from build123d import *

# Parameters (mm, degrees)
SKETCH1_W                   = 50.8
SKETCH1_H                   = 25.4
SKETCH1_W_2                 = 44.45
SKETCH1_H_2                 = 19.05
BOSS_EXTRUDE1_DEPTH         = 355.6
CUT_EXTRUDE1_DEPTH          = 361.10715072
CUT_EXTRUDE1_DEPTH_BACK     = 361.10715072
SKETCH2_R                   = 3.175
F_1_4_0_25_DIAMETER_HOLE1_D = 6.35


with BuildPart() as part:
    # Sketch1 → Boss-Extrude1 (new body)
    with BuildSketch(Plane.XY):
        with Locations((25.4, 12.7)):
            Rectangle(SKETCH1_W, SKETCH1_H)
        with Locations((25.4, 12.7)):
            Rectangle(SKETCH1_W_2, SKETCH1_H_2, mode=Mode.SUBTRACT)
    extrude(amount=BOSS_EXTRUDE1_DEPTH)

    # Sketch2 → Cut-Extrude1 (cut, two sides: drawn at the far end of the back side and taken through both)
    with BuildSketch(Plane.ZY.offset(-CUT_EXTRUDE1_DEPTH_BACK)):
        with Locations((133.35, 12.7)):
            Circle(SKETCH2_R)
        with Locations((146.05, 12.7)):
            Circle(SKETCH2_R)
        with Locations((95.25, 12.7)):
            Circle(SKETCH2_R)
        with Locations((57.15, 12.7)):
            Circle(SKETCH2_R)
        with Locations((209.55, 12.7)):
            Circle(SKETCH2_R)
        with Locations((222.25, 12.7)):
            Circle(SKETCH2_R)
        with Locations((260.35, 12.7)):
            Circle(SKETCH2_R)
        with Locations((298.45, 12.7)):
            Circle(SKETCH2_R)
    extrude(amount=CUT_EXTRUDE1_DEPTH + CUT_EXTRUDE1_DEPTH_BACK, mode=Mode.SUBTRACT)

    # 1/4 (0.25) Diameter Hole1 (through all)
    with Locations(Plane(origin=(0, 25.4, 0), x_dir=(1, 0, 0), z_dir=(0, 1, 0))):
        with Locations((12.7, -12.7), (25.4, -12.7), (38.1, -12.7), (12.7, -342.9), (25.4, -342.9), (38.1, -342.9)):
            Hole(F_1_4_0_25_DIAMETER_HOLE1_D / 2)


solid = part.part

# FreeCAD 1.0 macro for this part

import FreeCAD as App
import Part
import Sketcher

V = App.Vector
Q = App.Units.Quantity


def add_polygon(sketch, points):
    """Adds a closed chain of lines whose ends are joined by coincident constraints."""
    first, n = sketch.GeometryCount, len(points)
    for a, b in zip(points, points[1:] + points[:1]):
        sketch.addGeometry(Part.LineSegment(App.Vector(*a, 0), App.Vector(*b, 0)), False)
    for i in range(n):
        sketch.addConstraint(Sketcher.Constraint("Coincident", first + i, 2, first + (i + 1) % n, 1))

doc = App.newDocument("Part")
params = doc.addObject("Spreadsheet::Sheet", "Params")
for row, (alias, value) in enumerate([
    ("sketch1_width", "2 in"),
    ("sketch1_height", "1 in"),
    ("sketch1_width2", "1.75 in"),
    ("sketch1_height2", "0.75 in"),
    ("pad1_length", "14 in"),
    ("sketch2_diameter", "0.25 in"),
    ("sketch3_diameter", "0.25 in"),
    ("hole_diameter", "0.25 in"),
], start=1):
    params.set(f"A{row}", alias)
    params.set(f"B{row}", "=" + value)
    params.setAlias(f"B{row}", alias)

body = doc.addObject("PartDesign::Body", "Body")

# Sketch on XY plane
sketch1 = body.newObject("Sketcher::SketchObject", "Sketch")
sketch1.AttachmentSupport = (doc.getObject("XY_Plane"), [""])
sketch1.MapMode = "FlatFace"
add_polygon(sketch1, [(0, 25), (0, 0), (51, 0), (51, 25)])  # lines 0-3
add_polygon(sketch1, [(48, 3), (3, 3), (3, 22), (48, 22)])  # lines 4-7
sketch1.addConstraint(Sketcher.Constraint("Vertical", 0))
sketch1.addConstraint(Sketcher.Constraint("Horizontal", 1))
sketch1.addConstraint(Sketcher.Constraint("Vertical", 2))
sketch1.addConstraint(Sketcher.Constraint("Horizontal", 3))
sketch1.addConstraint(Sketcher.Constraint("Horizontal", 4))
sketch1.addConstraint(Sketcher.Constraint("Vertical", 5))
sketch1.addConstraint(Sketcher.Constraint("Horizontal", 6))
sketch1.addConstraint(Sketcher.Constraint("Vertical", 7))
sketch1.addConstraint(Sketcher.Constraint("Coincident", 0, 2, -1, 1))
sketch1.addConstraint(Sketcher.Constraint("DistanceX", 1, 1, 1, 2, Q("2 in")))
sketch1.addConstraint(Sketcher.Constraint("DistanceY", 0, 2, 0, 1, Q("1 in")))
sketch1.addConstraint(Sketcher.Constraint("DistanceX", 4, 2, 4, 1, Q("1.75 in")))
sketch1.addConstraint(Sketcher.Constraint("DistanceY", 5, 1, 5, 2, Q("0.75 in")))
sketch1.addConstraint(Sketcher.Constraint("DistanceX", -1, 1, 4, 2, Q("0.125 in")))
sketch1.addConstraint(Sketcher.Constraint("DistanceY", -1, 1, 4, 2, Q("0.125 in")))
sketch1.setExpression("Constraints[17]", "Params.sketch1_width")
sketch1.setExpression("Constraints[18]", "Params.sketch1_height")
sketch1.setExpression("Constraints[19]", "Params.sketch1_width2")
sketch1.setExpression("Constraints[20]", "Params.sketch1_height2")
pad1 = body.newObject("PartDesign::Pad", "Pad")
pad1.Profile = sketch1
pad1.setExpression("Length", "Params.pad1_length")

# Sketch on YZ plane
sketch2 = body.newObject("Sketcher::SketchObject", "Sketch001")
sketch2.AttachmentSupport = (doc.getObject("YZ_Plane"), [""])
sketch2.MapMode = "FlatFace"
sketch2.addGeometry(Part.Circle(V(12.7, 133.3, 0), V(0, 0, 1), 3.2), False)
sketch2.addGeometry(Part.Circle(V(12.7, 146.1, 0), V(0, 0, 1), 3.2), False)
sketch2.addGeometry(Part.Circle(V(12.7, 95.2, 0), V(0, 0, 1), 3.2), False)
sketch2.addGeometry(Part.Circle(V(12.7, 57.1, 0), V(0, 0, 1), 3.2), False)
sketch2.addGeometry(Part.Circle(V(12.7, 209.6, 0), V(0, 0, 1), 3.2), False)
sketch2.addGeometry(Part.Circle(V(12.7, 222.2, 0), V(0, 0, 1), 3.2), False)
sketch2.addGeometry(Part.Circle(V(12.7, 260.4, 0), V(0, 0, 1), 3.2), False)
sketch2.addGeometry(Part.Circle(V(12.7, 298.4, 0), V(0, 0, 1), 3.2), False)
sketch2.addConstraint(Sketcher.Constraint("Equal", 0, 1))
sketch2.addConstraint(Sketcher.Constraint("Equal", 1, 2))
sketch2.addConstraint(Sketcher.Constraint("Equal", 2, 3))
sketch2.addConstraint(Sketcher.Constraint("Equal", 3, 4))
sketch2.addConstraint(Sketcher.Constraint("Equal", 4, 5))
sketch2.addConstraint(Sketcher.Constraint("Equal", 5, 6))
sketch2.addConstraint(Sketcher.Constraint("Equal", 6, 7))
sketch2.addConstraint(Sketcher.Constraint("Vertical", 0, 3, 1, 3))
sketch2.addConstraint(Sketcher.Constraint("Vertical", 1, 3, 2, 3))
sketch2.addConstraint(Sketcher.Constraint("Vertical", 2, 3, 3, 3))
sketch2.addConstraint(Sketcher.Constraint("Vertical", 3, 3, 4, 3))
sketch2.addConstraint(Sketcher.Constraint("Vertical", 4, 3, 5, 3))
sketch2.addConstraint(Sketcher.Constraint("Vertical", 5, 3, 6, 3))
sketch2.addConstraint(Sketcher.Constraint("Vertical", 6, 3, 7, 3))
sketch2.addConstraint(Sketcher.Constraint("Diameter", 0, Q("0.25 in")))
sketch2.addConstraint(Sketcher.Constraint("DistanceY", 2, 3, 1, 3, Q("2 in")))
sketch2.addConstraint(Sketcher.Constraint("DistanceY", 3, 3, 0, 3, Q("3 in")))
sketch2.addConstraint(Sketcher.Constraint("DistanceY", 0, 3, 4, 3, Q("3 in")))
sketch2.addConstraint(Sketcher.Constraint("DistanceY", 1, 3, 5, 3, Q("3 in")))
sketch2.addConstraint(Sketcher.Constraint("DistanceY", 4, 3, 6, 3, Q("2 in")))
sketch2.addConstraint(Sketcher.Constraint("DistanceY", 5, 3, 7, 3, Q("3 in")))
sketch2.addConstraint(Sketcher.Constraint("DistanceX", -1, 1, 0, 3, Q("0.5 in")))
sketch2.addConstraint(Sketcher.Constraint("DistanceY", 0, 3, 1, 3, Q("0.5 in")))
sketch2.addConstraint(Sketcher.Constraint("DistanceY", -1, 1, 0, 3, Q("5.25 in")))
sketch2.setExpression("Constraints[14]", "Params.sketch2_diameter")
pocket1 = body.newObject("PartDesign::Pocket", "Pocket")
pocket1.Profile = sketch2
pocket1.Type = "ThroughAll"
pocket1.Midplane = True

# Sketch on XZ plane
sketch3 = body.newObject("Sketcher::SketchObject", "Sketch002")
sketch3.AttachmentSupport = (doc.getObject("XZ_Plane"), [""])
sketch3.MapMode = "FlatFace"
sketch3.AttachmentOffset = App.Placement(V(0, 0, -1 * 25.4), App.Rotation())
sketch3.addGeometry(Part.Circle(V(12.7, 12.7, 0), V(0, 0, 1), 3.2), False)
sketch3.addGeometry(Part.Circle(V(25.4, 12.7, 0), V(0, 0, 1), 3.2), False)
sketch3.addGeometry(Part.Circle(V(38.1, 12.7, 0), V(0, 0, 1), 3.2), False)
sketch3.addGeometry(Part.Circle(V(12.7, 342.9, 0), V(0, 0, 1), 3.2), False)
sketch3.addGeometry(Part.Circle(V(25.4, 342.9, 0), V(0, 0, 1), 3.2), False)
sketch3.addGeometry(Part.Circle(V(38.1, 342.9, 0), V(0, 0, 1), 3.2), False)
sketch3.addConstraint(Sketcher.Constraint("Equal", 0, 1))
sketch3.addConstraint(Sketcher.Constraint("Equal", 1, 2))
sketch3.addConstraint(Sketcher.Constraint("Equal", 2, 3))
sketch3.addConstraint(Sketcher.Constraint("Equal", 3, 4))
sketch3.addConstraint(Sketcher.Constraint("Equal", 4, 5))
sketch3.addConstraint(Sketcher.Constraint("Horizontal", 0, 3, 1, 3))
sketch3.addConstraint(Sketcher.Constraint("Horizontal", 1, 3, 2, 3))
sketch3.addConstraint(Sketcher.Constraint("Horizontal", 3, 3, 4, 3))
sketch3.addConstraint(Sketcher.Constraint("Horizontal", 4, 3, 5, 3))
sketch3.addConstraint(Sketcher.Constraint("Vertical", 0, 3, 3, 3))
sketch3.addConstraint(Sketcher.Constraint("Vertical", 1, 3, 4, 3))
sketch3.addConstraint(Sketcher.Constraint("Vertical", 2, 3, 5, 3))
sketch3.addConstraint(Sketcher.Constraint("Diameter", 0, Q("0.25 in")))
sketch3.addConstraint(Sketcher.Constraint("DistanceX", -1, 1, 1, 3, Q("1 in")))
sketch3.addConstraint(Sketcher.Constraint("DistanceX", 0, 3, 2, 3, Q("1 in")))
sketch3.addConstraint(Sketcher.Constraint("DistanceY", 0, 3, 3, 3, Q("13 in")))
sketch3.addConstraint(Sketcher.Constraint("DistanceX", -1, 1, 0, 3, Q("0.5 in")))
sketch3.addConstraint(Sketcher.Constraint("DistanceY", -1, 1, 0, 3, Q("0.5 in")))
sketch3.setExpression("Constraints[12]", "Params.sketch3_diameter")
doc.recompute()
hole = body.newObject("PartDesign::Hole", "Hole")
hole.Profile = sketch3
hole.ThreadType = "None"
hole.setExpression("Diameter", "Params.hole_diameter")
hole.DepthType = "ThroughAll"
hole.Reversed = True

doc.recompute()
